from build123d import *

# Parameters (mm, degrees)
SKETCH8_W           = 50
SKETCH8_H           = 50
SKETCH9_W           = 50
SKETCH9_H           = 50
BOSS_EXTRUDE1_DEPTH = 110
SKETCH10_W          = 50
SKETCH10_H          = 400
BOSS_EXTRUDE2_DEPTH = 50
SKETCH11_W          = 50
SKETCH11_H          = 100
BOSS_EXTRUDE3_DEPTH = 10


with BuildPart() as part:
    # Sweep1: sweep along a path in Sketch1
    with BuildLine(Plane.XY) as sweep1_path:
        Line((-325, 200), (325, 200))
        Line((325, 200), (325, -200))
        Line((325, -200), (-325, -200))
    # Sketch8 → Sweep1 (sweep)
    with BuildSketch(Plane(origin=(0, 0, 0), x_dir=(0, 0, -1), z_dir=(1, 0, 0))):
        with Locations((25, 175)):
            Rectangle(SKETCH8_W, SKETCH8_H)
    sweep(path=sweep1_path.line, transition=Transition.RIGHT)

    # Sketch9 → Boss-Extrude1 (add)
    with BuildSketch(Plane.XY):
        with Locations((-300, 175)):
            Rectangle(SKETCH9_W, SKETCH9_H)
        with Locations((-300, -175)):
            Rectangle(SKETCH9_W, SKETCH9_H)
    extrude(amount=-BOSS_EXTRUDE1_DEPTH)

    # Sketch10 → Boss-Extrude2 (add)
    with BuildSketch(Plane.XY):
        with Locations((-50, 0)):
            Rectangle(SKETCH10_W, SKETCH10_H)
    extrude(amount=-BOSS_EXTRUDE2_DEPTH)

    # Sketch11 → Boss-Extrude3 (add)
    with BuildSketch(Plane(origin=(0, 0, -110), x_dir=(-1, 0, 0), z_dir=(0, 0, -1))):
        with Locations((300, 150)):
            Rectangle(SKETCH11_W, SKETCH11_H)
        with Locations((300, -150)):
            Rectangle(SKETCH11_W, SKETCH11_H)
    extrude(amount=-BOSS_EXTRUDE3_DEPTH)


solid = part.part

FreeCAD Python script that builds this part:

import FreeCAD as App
import Part
import Sketcher

V = App.Vector
Q = App.Units.Quantity


def add_polygon(sketch, points):
    """Adds a closed chain of lines whose ends are joined by coincident constraints."""
    first, n = sketch.GeometryCount, len(points)
    for a, b in zip(points, points[1:] + points[:1]):
        sketch.addGeometry(Part.LineSegment(App.Vector(*a, 0), App.Vector(*b, 0)), False)
    for i in range(n):
        sketch.addConstraint(Sketcher.Constraint("Coincident", first + i, 2, first + (i + 1) % n, 1))

doc = App.newDocument("Part")
body = doc.addObject("PartDesign::Body", "Body")

# Sketch on YZ plane
sketch1 = body.newObject("Sketcher::SketchObject", "Sketch")
sketch1.AttachmentSupport = (doc.getObject("YZ_Plane"), [""])
sketch1.MapMode = "FlatFace"
add_polygon(sketch1, [(200, 0), (150, 0), (150, -50), (200, -50)])  # lines 0-3
sketch1.addConstraint(Sketcher.Constraint("Horizontal", 0))
sketch1.addConstraint(Sketcher.Constraint("Vertical", 1))
sketch1.addConstraint(Sketcher.Constraint("Horizontal", 2))
sketch1.addConstraint(Sketcher.Constraint("Vertical", 3))
sketch1.addConstraint(Sketcher.Constraint("PointOnObject", 0, 2, -1))
sketch1.addConstraint(Sketcher.Constraint("Equal", 2, 1))
sketch1.addConstraint(Sketcher.Constraint("DistanceX", 0, 2, 0, 1, Q("50 mm")))
sketch1.addConstraint(Sketcher.Constraint("DistanceX", -1, 1, 0, 2, Q("150 mm")))

# Sketch on XY plane
sketch2 = body.newObject("Sketcher::SketchObject", "Sketch001")
sketch2.AttachmentSupport = (doc.getObject("XY_Plane"), [""])
sketch2.MapMode = "FlatFace"
sketch2.addGeometry(Part.LineSegment(V(-325, 200, 0), V(325, 200, 0)), False)
sketch2.addGeometry(Part.LineSegment(V(325, 200, 0), V(325, -200, 0)), False)
sketch2.addGeometry(Part.LineSegment(V(325, -200, 0), V(-325, -200, 0)), False)
sketch2.addConstraint(Sketcher.Constraint("Coincident", 0, 2, 1, 1))
sketch2.addConstraint(Sketcher.Constraint("Coincident", 1, 2, 2, 1))
sketch2.addConstraint(Sketcher.Constraint("Horizontal", 0))
sketch2.addConstraint(Sketcher.Constraint("Vertical", 1))
sketch2.addConstraint(Sketcher.Constraint("Horizontal", 2))
sketch2.addConstraint(Sketcher.Constraint("Symmetric", 0, 1, 1, 2, -1, 1))
sketch2.addConstraint(Sketcher.Constraint("Vertical", 0, 1, 2, 2))
sketch2.addConstraint(Sketcher.Constraint("DistanceX", 0, 1, 0, 2, Q("650 mm")))
sketch2.addConstraint(Sketcher.Constraint("DistanceY", 1, 2, 1, 1, Q("400 mm")))
doc.recompute()

additivepipe = body.newObject("PartDesign::AdditivePipe", "AdditivePipe")
additivepipe.Profile = sketch1
additivepipe.Spine = (sketch2, ["Edge1", "Edge2", "Edge3"])
additivepipe.Transition = "Right corner"

# Sketch on XY plane
sketch3 = body.newObject("Sketcher::SketchObject", "Sketch002")
sketch3.AttachmentSupport = (doc.getObject("XY_Plane"), [""])
sketch3.MapMode = "FlatFace"
add_polygon(sketch3, [(-325, 200), (-325, 150), (-275, 150), (-275, 200)])  # lines 0-3
add_polygon(sketch3, [(-325, -150), (-325, -200), (-275, -200), (-275, -150)])  # lines 4-7
sketch3.addConstraint(Sketcher.Constraint("Vertical", 0))
sketch3.addConstraint(Sketcher.Constraint("Horizontal", 1))
sketch3.addConstraint(Sketcher.Constraint("Vertical", 2))
sketch3.addConstraint(Sketcher.Constraint("Horizontal", 3))
sketch3.addConstraint(Sketcher.Constraint("Vertical", 4))
sketch3.addConstraint(Sketcher.Constraint("Horizontal", 5))
sketch3.addConstraint(Sketcher.Constraint("Vertical", 6))
sketch3.addConstraint(Sketcher.Constraint("Horizontal", 7))
sketch3.addConstraint(Sketcher.Constraint("Symmetric", 3, 2, 4, 2, -1))
sketch3.addConstraint(Sketcher.Constraint("Symmetric", 1, 2, 6, 2, -1))
sketch3.addConstraint(Sketcher.Constraint("Equal", 7, 0))
sketch3.addConstraint(Sketcher.Constraint("DistanceX", 1, 1, 1, 2, Q("50 mm")))
sketch3.addConstraint(Sketcher.Constraint("DistanceX", 0, 2, -1, 1, Q("325 mm")))
sketch3.addConstraint(Sketcher.Constraint("DistanceY", -1, 1, 0, 2, Q("150 mm")))
pad1 = body.newObject("PartDesign::Pad", "Pad")
pad1.Profile = sketch3
pad1.Length = 110
pad1.Reversed = True

# Sketch on XY plane
sketch4 = body.newObject("Sketcher::SketchObject", "Sketch003")
sketch4.AttachmentSupport = (doc.getObject("XY_Plane"), [""])
sketch4.MapMode = "FlatFace"
add_polygon(sketch4, [(-75, 200), (-75, -200), (-25, -200), (-25, 200)])  # lines 0-3
sketch4.addConstraint(Sketcher.Constraint("Vertical", 0))
sketch4.addConstraint(Sketcher.Constraint("Horizontal", 1))
sketch4.addConstraint(Sketcher.Constraint("Vertical", 2))
sketch4.addConstraint(Sketcher.Constraint("Horizontal", 3))
sketch4.addConstraint(Sketcher.Constraint("DistanceX", 1, 1, 1, 2, Q("50 mm")))
sketch4.addConstraint(Sketcher.Constraint("DistanceY", 0, 2, 0, 1, Q("400 mm")))
sketch4.addConstraint(Sketcher.Constraint("DistanceX", 0, 2, -1, 1, Q("75 mm")))
sketch4.addConstraint(Sketcher.Constraint("DistanceY", 0, 2, -1, 1, Q("200 mm")))
pad2 = body.newObject("PartDesign::Pad", "Pad001")
pad2.Profile = sketch4
pad2.Length = 50
pad2.Reversed = True

# Sketch on XY plane
sketch5 = body.newObject("Sketcher::SketchObject", "Sketch004")
sketch5.AttachmentSupport = (doc.getObject("XY_Plane"), [""])
sketch5.MapMode = "FlatFace"
sketch5.AttachmentOffset = App.Placement(V(0, 0, -110), App.Rotation())
add_polygon(sketch5, [(-275, 200), (-275, 100), (-325, 100), (-325, 200)])  # lines 0-3
add_polygon(sketch5, [(-275, -100), (-275, -200), (-325, -200), (-325, -100)])  # lines 4-7
sketch5.addConstraint(Sketcher.Constraint("Vertical", 0))
sketch5.addConstraint(Sketcher.Constraint("Horizontal", 1))
sketch5.addConstraint(Sketcher.Constraint("Vertical", 2))
sketch5.addConstraint(Sketcher.Constraint("Horizontal", 3))
sketch5.addConstraint(Sketcher.Constraint("Vertical", 4))
sketch5.addConstraint(Sketcher.Constraint("Horizontal", 5))
sketch5.addConstraint(Sketcher.Constraint("Vertical", 6))
sketch5.addConstraint(Sketcher.Constraint("Horizontal", 7))
sketch5.addConstraint(Sketcher.Constraint("Symmetric", 3, 2, 4, 2, -1))
sketch5.addConstraint(Sketcher.Constraint("Symmetric", 1, 2, 6, 2, -1))
sketch5.addConstraint(Sketcher.Constraint("DistanceX", 1, 2, 1, 1, Q("50 mm")))
sketch5.addConstraint(Sketcher.Constraint("DistanceY", 0, 2, 0, 1, Q("100 mm")))
sketch5.addConstraint(Sketcher.Constraint("DistanceX", 0, 2, -1, 1, Q("275 mm")))
sketch5.addConstraint(Sketcher.Constraint("DistanceY", -1, 1, 0, 2, Q("100 mm")))
pad3 = body.newObject("PartDesign::Pad", "Pad002")
pad3.Profile = sketch5
pad3.Length = 10

doc.recompute()
